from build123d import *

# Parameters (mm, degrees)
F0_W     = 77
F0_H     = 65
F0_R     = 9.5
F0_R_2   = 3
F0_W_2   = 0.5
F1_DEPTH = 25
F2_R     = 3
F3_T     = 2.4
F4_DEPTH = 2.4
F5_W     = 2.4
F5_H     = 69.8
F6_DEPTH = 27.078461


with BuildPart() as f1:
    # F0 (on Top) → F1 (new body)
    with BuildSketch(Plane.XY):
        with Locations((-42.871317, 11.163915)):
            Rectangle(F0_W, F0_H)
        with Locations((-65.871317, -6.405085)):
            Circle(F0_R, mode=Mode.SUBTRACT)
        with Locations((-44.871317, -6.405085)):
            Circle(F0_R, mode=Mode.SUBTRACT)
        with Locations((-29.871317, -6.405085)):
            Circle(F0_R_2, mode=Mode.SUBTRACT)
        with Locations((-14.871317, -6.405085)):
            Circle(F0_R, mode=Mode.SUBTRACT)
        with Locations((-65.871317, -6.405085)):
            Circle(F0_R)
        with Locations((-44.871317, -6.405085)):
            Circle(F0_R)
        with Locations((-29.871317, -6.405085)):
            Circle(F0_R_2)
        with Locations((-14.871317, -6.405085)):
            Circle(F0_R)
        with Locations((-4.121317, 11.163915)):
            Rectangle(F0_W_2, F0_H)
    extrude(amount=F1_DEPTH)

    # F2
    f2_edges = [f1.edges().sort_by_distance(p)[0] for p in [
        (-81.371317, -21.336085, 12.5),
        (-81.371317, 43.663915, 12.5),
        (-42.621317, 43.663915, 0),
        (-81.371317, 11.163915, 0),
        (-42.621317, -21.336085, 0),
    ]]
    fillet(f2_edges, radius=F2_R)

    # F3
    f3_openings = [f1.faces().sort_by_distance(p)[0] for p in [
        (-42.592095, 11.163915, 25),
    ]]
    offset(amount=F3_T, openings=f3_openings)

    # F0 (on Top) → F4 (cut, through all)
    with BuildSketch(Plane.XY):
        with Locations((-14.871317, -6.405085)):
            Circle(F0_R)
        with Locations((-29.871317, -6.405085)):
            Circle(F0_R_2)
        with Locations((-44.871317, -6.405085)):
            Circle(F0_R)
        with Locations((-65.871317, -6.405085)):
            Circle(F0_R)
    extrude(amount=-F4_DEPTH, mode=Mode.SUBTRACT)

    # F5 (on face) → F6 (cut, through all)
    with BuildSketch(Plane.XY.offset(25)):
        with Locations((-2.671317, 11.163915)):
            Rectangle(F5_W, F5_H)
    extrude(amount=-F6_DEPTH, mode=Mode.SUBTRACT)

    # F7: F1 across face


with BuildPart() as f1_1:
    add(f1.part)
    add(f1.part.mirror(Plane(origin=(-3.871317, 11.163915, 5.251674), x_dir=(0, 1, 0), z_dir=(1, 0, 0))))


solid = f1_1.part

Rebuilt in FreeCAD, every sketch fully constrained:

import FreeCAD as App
import Part
import Sketcher
from FreeCAD import Vector


def edges_at(feature, points):
    """Names of the edges that pass closest to the given points."""
    edges = feature.Shape.Edges
    near = lambda p: min(range(len(edges)), key=lambda i: edges[i].distToShape(Part.Vertex(*p))[0])
    return sorted({f"Edge{near(p) + 1}" for p in points})


def faces_at(feature, points):
    """Names of the faces that lie closest to the given points."""
    faces = feature.Shape.Faces
    near = lambda p: min(range(len(faces)), key=lambda i: faces[i].distToShape(Part.Vertex(*p))[0])
    return sorted({f"Face{near(p) + 1}" for p in points})


def add_polygon(sketch, points):
    """Adds a closed chain of lines whose ends are joined by coincident constraints."""
    first, n = sketch.GeometryCount, len(points)
    for a, b in zip(points, points[1:] + points[:1]):
        sketch.addGeometry(Part.LineSegment(App.Vector(*a, 0), App.Vector(*b, 0)), False)
    for i in range(n):
        sketch.addConstraint(Sketcher.Constraint("Coincident", first + i, 2, first + (i + 1) % n, 1))

doc = App.newDocument("Part")
params = doc.addObject("Spreadsheet::Sheet", "Params")
for row, (alias, value) in enumerate([
    ("sketch1_height", "65 mm"),
    ("sketch1_width", "77.5 mm"),
    ("pad1_length", "25 mm"),
    ("fillet_radius", "3 mm"),
    ("thickness_wall", "2.4 mm"),
    ("sketch2_diameter", "19 mm"),
    ("sketch2_diameter2", "6 mm"),
    ("sketch3_width", "2.4 mm"),
    ("sketch3_height", "69.8 mm"),
    ("pocket2_length", "27.078461 mm"),
], start=1):
    params.set(f"A{row}", alias)
    params.set(f"B{row}", "=" + value)
    params.setAlias(f"B{row}", alias)

body = doc.addObject("PartDesign::Body", "Body")

sketch1 = body.newObject("Sketcher::SketchObject", "Sketch")
sketch1.AttachmentSupport = (doc.getObject("XY_Plane"), [""])
sketch1.MapMode = "FlatFace"
add_polygon(sketch1, [(-81, 44), (-81, -21), (-4, -21), (-4, 44)])
sketch1.addConstraint(Sketcher.Constraint("Vertical", 0))
sketch1.addConstraint(Sketcher.Constraint("Horizontal", 1))
sketch1.addConstraint(Sketcher.Constraint("Vertical", 2))
sketch1.addConstraint(Sketcher.Constraint("Horizontal", 3))
sketch1.addConstraint(Sketcher.Constraint("DistanceY", 0, 2, 0, 1, 65.0))
sketch1.addConstraint(Sketcher.Constraint("DistanceX", 1, 1, 1, 2, 77.5))
sketch1.addConstraint(Sketcher.Constraint("DistanceX", 0, 2, -1, 1, 81.371317))
sketch1.addConstraint(Sketcher.Constraint("DistanceY", 0, 2, -1, 1, 21.336085))
sketch1.setExpression("Constraints[8]", "Params.sketch1_height")
sketch1.setExpression("Constraints[9]", "Params.sketch1_width")
pad1 = body.newObject("PartDesign::Pad", "Pad")
pad1.Profile = sketch1
pad1.setExpression("Length", "Params.pad1_length")
doc.recompute()

fillet = body.newObject("PartDesign::Fillet", "Fillet")
fillet.Base = (pad1, edges_at(pad1, [
    (-81.371, -21.336, 12.5),
    (-81.371, 43.664, 12.5),
    (-42.621, 43.664, 0),
    (-81.371, 11.164, 0),
    (-42.621, -21.336, 0),
]))
fillet.setExpression("Radius", "Params.fillet_radius")
doc.recompute()

thickness = body.newObject("PartDesign::Thickness", "Thickness")
thickness.Base = (fillet, faces_at(fillet, [(-42.621, 11.164, 25)]))
thickness.setExpression("Value", "Params.thickness_wall")
thickness.Reversed = False
thickness.Join = "Arc"

sketch2 = body.newObject("Sketcher::SketchObject", "Sketch001")
sketch2.AttachmentSupport = (doc.getObject("XY_Plane"), [""])
sketch2.MapMode = "FlatFace"
sketch2.addGeometry(Part.Circle(Vector(-14.9, -6.4, 0), Vector(0, 0, 1), 9.5), False)
sketch2.addGeometry(Part.Circle(Vector(-29.9, -6.4, 0), Vector(0, 0, 1), 3), False)
sketch2.addGeometry(Part.Circle(Vector(-44.9, -6.4, 0), Vector(0, 0, 1), 9.5), False)
sketch2.addGeometry(Part.Circle(Vector(-65.9, -6.4, 0), Vector(0, 0, 1), 9.5), False)
sketch2.addConstraint(Sketcher.Constraint("Equal", 0, 2))
sketch2.addConstraint(Sketcher.Constraint("Equal", 2, 3))
sketch2.addConstraint(Sketcher.Constraint("Horizontal", 0, 3, 1, 3))
sketch2.addConstraint(Sketcher.Constraint("Horizontal", 1, 3, 2, 3))
sketch2.addConstraint(Sketcher.Constraint("Horizontal", 2, 3, 3, 3))
sketch2.addConstraint(Sketcher.Constraint("Diameter", 0, 19.0))
sketch2.addConstraint(Sketcher.Constraint("Diameter", 1, 6.0))
sketch2.addConstraint(Sketcher.Constraint("DistanceX", 1, 3, 0, 3, 15.0))
sketch2.addConstraint(Sketcher.Constraint("DistanceX", 2, 3, 1, 3, 15.0))
sketch2.addConstraint(Sketcher.Constraint("DistanceX", 3, 3, 2, 3, 21.0))
sketch2.addConstraint(Sketcher.Constraint("DistanceX", 0, 3, -1, 1, 14.871317))
sketch2.addConstraint(Sketcher.Constraint("DistanceY", 0, 3, -1, 1, 6.405085))
sketch2.setExpression("Constraints[5]", "Params.sketch2_diameter")
sketch2.setExpression("Constraints[6]", "Params.sketch2_diameter2")
pocket1 = body.newObject("PartDesign::Pocket", "Pocket")
pocket1.Profile = sketch2
pocket1.Type = "ThroughAll"

sketch3 = body.newObject("Sketcher::SketchObject", "Sketch002")
sketch3.AttachmentSupport = (doc.getObject("XY_Plane"), [""])
sketch3.MapMode = "FlatFace"
sketch3.AttachmentOffset = App.Placement(Vector(0, 0, 25), App.Rotation())
add_polygon(sketch3, [(-3.9, 46.1), (-3.9, -23.7), (-1.5, -23.7), (-1.5, 46.1)])
sketch3.addConstraint(Sketcher.Constraint("Vertical", 0))
sketch3.addConstraint(Sketcher.Constraint("Horizontal", 1))
sketch3.addConstraint(Sketcher.Constraint("Vertical", 2))
sketch3.addConstraint(Sketcher.Constraint("Horizontal", 3))
sketch3.addConstraint(Sketcher.Constraint("DistanceX", 1, 1, 1, 2, 2.4))
sketch3.addConstraint(Sketcher.Constraint("DistanceY", 0, 2, 0, 1, 69.8))
sketch3.addConstraint(Sketcher.Constraint("DistanceX", 0, 2, -1, 1, 3.871317))
sketch3.addConstraint(Sketcher.Constraint("DistanceY", 0, 2, -1, 1, 23.736085))
sketch3.setExpression("Constraints[8]", "Params.sketch3_width")
sketch3.setExpression("Constraints[9]", "Params.sketch3_height")
pocket2 = body.newObject("PartDesign::Pocket", "Pocket001")
pocket2.Profile = sketch3
pocket2.setExpression("Length", "Params.pocket2_length")
body2 = doc.addObject("PartDesign::Body", "Body001")
doc.recompute()

body2.BaseFeature = body
doc.recompute()

mirroring = doc.addObject("Part::Mirroring", "Mirroring")
mirroring.Source = body
mirroring.Base = Vector(-3.871317, 11.163915, 5.251674)
mirroring.Normal = Vector(1, 0, 0)
body3 = doc.addObject("PartDesign::Body", "Body002")
body3.BaseFeature = mirroring
boolean = body2.newObject("PartDesign::Boolean", "Boolean")
boolean.Type = "Fuse"
boolean.addObjects([body3])
doc.recompute()
mirroring.Visibility = False

doc.recompute()
